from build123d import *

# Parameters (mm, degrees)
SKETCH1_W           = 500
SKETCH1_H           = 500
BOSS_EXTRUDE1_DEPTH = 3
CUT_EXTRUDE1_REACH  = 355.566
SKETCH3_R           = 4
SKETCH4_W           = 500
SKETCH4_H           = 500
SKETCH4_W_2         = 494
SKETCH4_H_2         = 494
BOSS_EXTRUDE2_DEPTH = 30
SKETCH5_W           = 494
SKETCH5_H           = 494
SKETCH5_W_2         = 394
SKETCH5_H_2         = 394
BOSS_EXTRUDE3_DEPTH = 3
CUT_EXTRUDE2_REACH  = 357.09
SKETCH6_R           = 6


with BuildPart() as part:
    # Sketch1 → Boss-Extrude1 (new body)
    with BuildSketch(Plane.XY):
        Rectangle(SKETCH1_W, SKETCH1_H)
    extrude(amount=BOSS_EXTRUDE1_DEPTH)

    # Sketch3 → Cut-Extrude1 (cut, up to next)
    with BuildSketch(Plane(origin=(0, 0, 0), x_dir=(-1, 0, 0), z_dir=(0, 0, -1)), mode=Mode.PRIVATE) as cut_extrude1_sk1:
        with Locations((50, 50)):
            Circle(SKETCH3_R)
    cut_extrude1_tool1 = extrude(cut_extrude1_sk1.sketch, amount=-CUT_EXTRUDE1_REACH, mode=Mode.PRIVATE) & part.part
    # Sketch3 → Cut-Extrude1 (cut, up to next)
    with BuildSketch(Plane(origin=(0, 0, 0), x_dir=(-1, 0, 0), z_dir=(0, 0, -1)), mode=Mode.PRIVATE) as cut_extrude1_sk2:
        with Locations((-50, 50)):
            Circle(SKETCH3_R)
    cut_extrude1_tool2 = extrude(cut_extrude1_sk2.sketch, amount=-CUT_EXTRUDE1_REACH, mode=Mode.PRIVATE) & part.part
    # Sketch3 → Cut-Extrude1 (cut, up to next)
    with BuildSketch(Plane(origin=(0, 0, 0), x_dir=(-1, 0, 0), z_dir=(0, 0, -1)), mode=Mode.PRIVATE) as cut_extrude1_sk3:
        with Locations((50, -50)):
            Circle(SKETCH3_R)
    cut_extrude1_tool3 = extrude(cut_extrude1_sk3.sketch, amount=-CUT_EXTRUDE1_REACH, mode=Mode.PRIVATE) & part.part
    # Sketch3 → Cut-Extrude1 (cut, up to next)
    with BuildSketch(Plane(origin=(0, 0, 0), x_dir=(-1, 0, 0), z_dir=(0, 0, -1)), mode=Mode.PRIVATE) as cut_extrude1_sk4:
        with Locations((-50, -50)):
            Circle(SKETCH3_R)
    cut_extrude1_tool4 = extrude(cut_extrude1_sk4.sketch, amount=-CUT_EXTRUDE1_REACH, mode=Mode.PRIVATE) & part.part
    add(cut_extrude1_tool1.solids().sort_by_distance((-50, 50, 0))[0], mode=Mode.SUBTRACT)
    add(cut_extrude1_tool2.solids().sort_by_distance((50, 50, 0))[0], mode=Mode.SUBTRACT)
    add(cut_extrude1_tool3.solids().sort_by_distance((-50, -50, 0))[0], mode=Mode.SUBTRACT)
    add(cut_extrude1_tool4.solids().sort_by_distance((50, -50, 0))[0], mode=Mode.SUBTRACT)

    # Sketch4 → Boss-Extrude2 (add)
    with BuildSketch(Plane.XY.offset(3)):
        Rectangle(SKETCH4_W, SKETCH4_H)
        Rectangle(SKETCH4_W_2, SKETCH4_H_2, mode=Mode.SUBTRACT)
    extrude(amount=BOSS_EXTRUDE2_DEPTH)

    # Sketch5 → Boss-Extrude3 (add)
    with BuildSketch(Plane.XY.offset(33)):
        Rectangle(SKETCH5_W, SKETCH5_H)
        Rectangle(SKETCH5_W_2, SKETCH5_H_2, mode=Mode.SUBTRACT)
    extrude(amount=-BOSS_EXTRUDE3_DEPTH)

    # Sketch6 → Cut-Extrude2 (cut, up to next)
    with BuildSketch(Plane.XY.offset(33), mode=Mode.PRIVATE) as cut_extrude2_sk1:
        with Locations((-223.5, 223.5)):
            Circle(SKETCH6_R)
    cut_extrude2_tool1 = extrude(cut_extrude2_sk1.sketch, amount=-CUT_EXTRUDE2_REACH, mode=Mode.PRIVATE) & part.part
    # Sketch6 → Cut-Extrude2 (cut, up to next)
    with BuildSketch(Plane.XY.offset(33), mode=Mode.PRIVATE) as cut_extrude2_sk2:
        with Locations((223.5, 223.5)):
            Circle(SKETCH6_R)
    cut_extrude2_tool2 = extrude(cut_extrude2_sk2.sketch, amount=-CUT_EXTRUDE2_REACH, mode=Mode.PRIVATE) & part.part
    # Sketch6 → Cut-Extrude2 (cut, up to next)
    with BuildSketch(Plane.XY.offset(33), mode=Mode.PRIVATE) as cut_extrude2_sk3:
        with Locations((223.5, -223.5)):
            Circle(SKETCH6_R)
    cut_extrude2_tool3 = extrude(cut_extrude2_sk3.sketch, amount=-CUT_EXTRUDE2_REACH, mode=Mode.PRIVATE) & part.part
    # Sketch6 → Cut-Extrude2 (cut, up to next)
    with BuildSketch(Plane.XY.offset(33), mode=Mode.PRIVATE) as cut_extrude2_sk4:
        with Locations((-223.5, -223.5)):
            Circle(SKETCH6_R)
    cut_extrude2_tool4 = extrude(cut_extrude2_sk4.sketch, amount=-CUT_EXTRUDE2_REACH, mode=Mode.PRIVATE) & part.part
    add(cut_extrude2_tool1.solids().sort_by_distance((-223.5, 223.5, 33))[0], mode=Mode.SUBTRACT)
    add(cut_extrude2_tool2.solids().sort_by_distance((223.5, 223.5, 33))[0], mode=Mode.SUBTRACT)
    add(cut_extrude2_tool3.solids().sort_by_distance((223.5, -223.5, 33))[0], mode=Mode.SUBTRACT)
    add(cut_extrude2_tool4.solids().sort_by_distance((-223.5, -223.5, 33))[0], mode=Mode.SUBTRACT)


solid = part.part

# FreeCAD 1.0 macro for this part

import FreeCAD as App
import Part
import Sketcher

V = App.Vector
Q = App.Units.Quantity

doc = App.newDocument("Part")
body = doc.addObject("PartDesign::Body", "Body")

# Sketch on XY plane
sketch1 = doc.addObject("Sketcher::SketchObject", "Sketch")
body.addObject(sketch1)
sketch1.AttachmentSupport = (doc.XY_Plane, [""])
sketch1.MapMode = "FlatFace"
sketch1.addGeometry(Part.LineSegment(V(-250, 250, 0), V(-250, -250, 0)), False)
sketch1.addGeometry(Part.LineSegment(V(-250, -250, 0), V(250, -250, 0)), False)
sketch1.addGeometry(Part.LineSegment(V(250, -250, 0), V(250, 250, 0)), False)
sketch1.addGeometry(Part.LineSegment(V(250, 250, 0), V(-250, 250, 0)), False)
sketch1.addConstraint(Sketcher.Constraint("Coincident", 0, 2, 1, 1))
sketch1.addConstraint(Sketcher.Constraint("Coincident", 1, 2, 2, 1))
sketch1.addConstraint(Sketcher.Constraint("Coincident", 2, 2, 3, 1))
sketch1.addConstraint(Sketcher.Constraint("Coincident", 3, 2, 0, 1))
sketch1.addConstraint(Sketcher.Constraint("Vertical", 0))
sketch1.addConstraint(Sketcher.Constraint("Horizontal", 1))
sketch1.addConstraint(Sketcher.Constraint("Vertical", 2))
sketch1.addConstraint(Sketcher.Constraint("Horizontal", 3))
sketch1.addConstraint(Sketcher.Constraint("Symmetric", 0, 2, 2, 2, -1, 1))
sketch1.addConstraint(Sketcher.Constraint("Equal", 3, 0))
sketch1.addConstraint(Sketcher.Constraint("DistanceX", 1, 1, 1, 2, Q("500 mm")))
pad1 = doc.addObject("PartDesign::Pad", "Pad")
body.addObject(pad1)
pad1.Profile = sketch1
pad1.Length = 3

# Sketch on XY plane
sketch2 = doc.addObject("Sketcher::SketchObject", "Sketch001")
body.addObject(sketch2)
sketch2.AttachmentSupport = (doc.XY_Plane, [""])
sketch2.MapMode = "FlatFace"
sketch2.addGeometry(Part.Circle(V(-50, 50, 0), V(0, 0, 1), 4), False)
sketch2.addConstraint(Sketcher.Constraint("Diameter", 0, Q("8 mm")))
sketch2.addConstraint(Sketcher.Constraint("DistanceX", 0, 3, -1, 1, Q("50 mm")))
sketch2.addConstraint(Sketcher.Constraint("DistanceY", -1, 1, 0, 3, Q("50 mm")))
pocket1 = doc.addObject("PartDesign::Pocket", "Pocket")
body.addObject(pocket1)
pocket1.Profile = sketch2
pocket1.Type = "UpToFirst"
pocket1.Reversed = True

# Sketch on XY plane
sketch3 = doc.addObject("Sketcher::SketchObject", "Sketch002")
body.addObject(sketch3)
sketch3.AttachmentSupport = (doc.XY_Plane, [""])
sketch3.MapMode = "FlatFace"
sketch3.addGeometry(Part.Circle(V(50, 50, 0), V(0, 0, 1), 4), False)
sketch3.addConstraint(Sketcher.Constraint("Diameter", 0, Q("8 mm")))
sketch3.addConstraint(Sketcher.Constraint("DistanceX", -1, 1, 0, 3, Q("50 mm")))
sketch3.addConstraint(Sketcher.Constraint("DistanceY", -1, 1, 0, 3, Q("50 mm")))
pocket2 = doc.addObject("PartDesign::Pocket", "Pocket001")
body.addObject(pocket2)
pocket2.Profile = sketch3
pocket2.Type = "UpToFirst"
pocket2.Reversed = True

# Sketch on XY plane
sketch4 = doc.addObject("Sketcher::SketchObject", "Sketch003")
body.addObject(sketch4)
sketch4.AttachmentSupport = (doc.XY_Plane, [""])
sketch4.MapMode = "FlatFace"
sketch4.addGeometry(Part.Circle(V(-50, -50, 0), V(0, 0, 1), 4), False)
sketch4.addConstraint(Sketcher.Constraint("Diameter", 0, Q("8 mm")))
sketch4.addConstraint(Sketcher.Constraint("DistanceX", 0, 3, -1, 1, Q("50 mm")))
sketch4.addConstraint(Sketcher.Constraint("DistanceY", 0, 3, -1, 1, Q("50 mm")))
pocket3 = doc.addObject("PartDesign::Pocket", "Pocket002")
body.addObject(pocket3)
pocket3.Profile = sketch4
pocket3.Type = "UpToFirst"
pocket3.Reversed = True

# Sketch on XY plane
sketch5 = doc.addObject("Sketcher::SketchObject", "Sketch004")
body.addObject(sketch5)
sketch5.AttachmentSupport = (doc.XY_Plane, [""])
sketch5.MapMode = "FlatFace"
sketch5.addGeometry(Part.Circle(V(50, -50, 0), V(0, 0, 1), 4), False)
sketch5.addConstraint(Sketcher.Constraint("Diameter", 0, Q("8 mm")))
sketch5.addConstraint(Sketcher.Constraint("DistanceX", -1, 1, 0, 3, Q("50 mm")))
sketch5.addConstraint(Sketcher.Constraint("DistanceY", 0, 3, -1, 1, Q("50 mm")))
pocket4 = doc.addObject("PartDesign::Pocket", "Pocket003")
body.addObject(pocket4)
pocket4.Profile = sketch5
pocket4.Type = "UpToFirst"
pocket4.Reversed = True

# Sketch on XY plane
sketch6 = doc.addObject("Sketcher::SketchObject", "Sketch005")
body.addObject(sketch6)
sketch6.AttachmentSupport = (doc.XY_Plane, [""])
sketch6.MapMode = "FlatFace"
sketch6.AttachmentOffset = App.Placement(V(0, 0, 3), App.Rotation())
sketch6.addGeometry(Part.LineSegment(V(-250, 250, 0), V(-250, -250, 0)), False)
sketch6.addGeometry(Part.LineSegment(V(-250, -250, 0), V(250, -250, 0)), False)
sketch6.addGeometry(Part.LineSegment(V(250, -250, 0), V(250, 250, 0)), False)
sketch6.addGeometry(Part.LineSegment(V(250, 250, 0), V(-250, 250, 0)), False)
sketch6.addGeometry(Part.LineSegment(V(247, -247, 0), V(-247, -247, 0)), False)
sketch6.addGeometry(Part.LineSegment(V(-247, -247, 0), V(-247, 247, 0)), False)
sketch6.addGeometry(Part.LineSegment(V(-247, 247, 0), V(247, 247, 0)), False)
sketch6.addGeometry(Part.LineSegment(V(247, 247, 0), V(247, -247, 0)), False)
sketch6.addConstraint(Sketcher.Constraint("Coincident", 0, 2, 1, 1))
sketch6.addConstraint(Sketcher.Constraint("Coincident", 1, 2, 2, 1))
sketch6.addConstraint(Sketcher.Constraint("Coincident", 2, 2, 3, 1))
sketch6.addConstraint(Sketcher.Constraint("Coincident", 3, 2, 0, 1))
sketch6.addConstraint(Sketcher.Constraint("Coincident", 4, 2, 5, 1))
sketch6.addConstraint(Sketcher.Constraint("Coincident", 5, 2, 6, 1))
sketch6.addConstraint(Sketcher.Constraint("Coincident", 6, 2, 7, 1))
sketch6.addConstraint(Sketcher.Constraint("Coincident", 7, 2, 4, 1))
sketch6.addConstraint(Sketcher.Constraint("Vertical", 0))
sketch6.addConstraint(Sketcher.Constraint("Horizontal", 1))
sketch6.addConstraint(Sketcher.Constraint("Vertical", 2))
sketch6.addConstraint(Sketcher.Constraint("Horizontal", 3))
sketch6.addConstraint(Sketcher.Constraint("Horizontal", 4))
sketch6.addConstraint(Sketcher.Constraint("Vertical", 5))
sketch6.addConstraint(Sketcher.Constraint("Horizontal", 6))
sketch6.addConstraint(Sketcher.Constraint("Vertical", 7))
sketch6.addConstraint(Sketcher.Constraint("Symmetric", 0, 2, 2, 2, -1, 1))
sketch6.addConstraint(Sketcher.Constraint("Symmetric", 4, 2, 6, 2, -1, 1))
sketch6.addConstraint(Sketcher.Constraint("Equal", 3, 0))
sketch6.addConstraint(Sketcher.Constraint("Equal", 6, 5))
sketch6.addConstraint(Sketcher.Constraint("DistanceX", 1, 1, 1, 2, Q("500 mm")))
sketch6.addConstraint(Sketcher.Constraint("DistanceX", 4, 2, 4, 1, Q("494 mm")))
pad2 = doc.addObject("PartDesign::Pad", "Pad001")
body.addObject(pad2)
pad2.Profile = sketch6
pad2.Length = 30

# Sketch on XY plane
sketch7 = doc.addObject("Sketcher::SketchObject", "Sketch006")
body.addObject(sketch7)
sketch7.AttachmentSupport = (doc.XY_Plane, [""])
sketch7.MapMode = "FlatFace"
sketch7.AttachmentOffset = App.Placement(V(0, 0, 33), App.Rotation())
sketch7.addGeometry(Part.LineSegment(V(-247, 247, 0), V(-247, -247, 0)), False)
sketch7.addGeometry(Part.LineSegment(V(-247, -247, 0), V(247, -247, 0)), False)
sketch7.addGeometry(Part.LineSegment(V(247, -247, 0), V(247, 247, 0)), False)
sketch7.addGeometry(Part.LineSegment(V(247, 247, 0), V(-247, 247, 0)), False)
sketch7.addGeometry(Part.LineSegment(V(197, -197, 0), V(-197, -197, 0)), False)
sketch7.addGeometry(Part.LineSegment(V(-197, -197, 0), V(-197, 197, 0)), False)
sketch7.addGeometry(Part.LineSegment(V(-197, 197, 0), V(197, 197, 0)), False)
sketch7.addGeometry(Part.LineSegment(V(197, 197, 0), V(197, -197, 0)), False)
sketch7.addConstraint(Sketcher.Constraint("Coincident", 0, 2, 1, 1))
sketch7.addConstraint(Sketcher.Constraint("Coincident", 1, 2, 2, 1))
sketch7.addConstraint(Sketcher.Constraint("Coincident", 2, 2, 3, 1))
sketch7.addConstraint(Sketcher.Constraint("Coincident", 3, 2, 0, 1))
sketch7.addConstraint(Sketcher.Constraint("Coincident", 4, 2, 5, 1))
sketch7.addConstraint(Sketcher.Constraint("Coincident", 5, 2, 6, 1))
sketch7.addConstraint(Sketcher.Constraint("Coincident", 6, 2, 7, 1))
sketch7.addConstraint(Sketcher.Constraint("Coincident", 7, 2, 4, 1))
sketch7.addConstraint(Sketcher.Constraint("Vertical", 0))
sketch7.addConstraint(Sketcher.Constraint("Horizontal", 1))
sketch7.addConstraint(Sketcher.Constraint("Vertical", 2))
sketch7.addConstraint(Sketcher.Constraint("Horizontal", 3))
sketch7.addConstraint(Sketcher.Constraint("Horizontal", 4))
sketch7.addConstraint(Sketcher.Constraint("Vertical", 5))
sketch7.addConstraint(Sketcher.Constraint("Horizontal", 6))
sketch7.addConstraint(Sketcher.Constraint("Vertical", 7))
sketch7.addConstraint(Sketcher.Constraint("Symmetric", 0, 2, 2, 2, -1, 1))
sketch7.addConstraint(Sketcher.Constraint("Symmetric", 4, 2, 6, 2, -1, 1))
sketch7.addConstraint(Sketcher.Constraint("Equal", 3, 0))
sketch7.addConstraint(Sketcher.Constraint("Equal", 6, 5))
sketch7.addConstraint(Sketcher.Constraint("DistanceX", 1, 1, 1, 2, Q("494 mm")))
sketch7.addConstraint(Sketcher.Constraint("DistanceX", 4, 2, 4, 1, Q("394 mm")))
pad3 = doc.addObject("PartDesign::Pad", "Pad002")
body.addObject(pad3)
pad3.Profile = sketch7
pad3.Length = 3
pad3.Reversed = True

# Sketch on XY plane
sketch8 = doc.addObject("Sketcher::SketchObject", "Sketch007")
body.addObject(sketch8)
sketch8.AttachmentSupport = (doc.XY_Plane, [""])
sketch8.MapMode = "FlatFace"
sketch8.AttachmentOffset = App.Placement(V(0, 0, 33), App.Rotation())
sketch8.addGeometry(Part.Circle(V(-224, 224, 0), V(0, 0, 1), 6), False)
sketch8.addConstraint(Sketcher.Constraint("Diameter", 0, Q("12 mm")))
sketch8.addConstraint(Sketcher.Constraint("DistanceX", 0, 3, -1, 1, Q("223.5 mm")))
sketch8.addConstraint(Sketcher.Constraint("DistanceY", -1, 1, 0, 3, Q("223.5 mm")))
pocket5 = doc.addObject("PartDesign::Pocket", "Pocket004")
body.addObject(pocket5)
pocket5.Profile = sketch8
pocket5.Type = "UpToFirst"

# Sketch on XY plane
sketch9 = doc.addObject("Sketcher::SketchObject", "Sketch008")
body.addObject(sketch9)
sketch9.AttachmentSupport = (doc.XY_Plane, [""])
sketch9.MapMode = "FlatFace"
sketch9.AttachmentOffset = App.Placement(V(0, 0, 33), App.Rotation())
sketch9.addGeometry(Part.Circle(V(224, 224, 0), V(0, 0, 1), 6), False)
sketch9.addConstraint(Sketcher.Constraint("Diameter", 0, Q("12 mm")))
sketch9.addConstraint(Sketcher.Constraint("DistanceX", -1, 1, 0, 3, Q("223.5 mm")))
sketch9.addConstraint(Sketcher.Constraint("DistanceY", -1, 1, 0, 3, Q("223.5 mm")))
pocket6 = doc.addObject("PartDesign::Pocket", "Pocket005")
body.addObject(pocket6)
pocket6.Profile = sketch9
pocket6.Type = "UpToFirst"

# Sketch on XY plane
sketch10 = doc.addObject("Sketcher::SketchObject", "Sketch009")
body.addObject(sketch10)
sketch10.AttachmentSupport = (doc.XY_Plane, [""])
sketch10.MapMode = "FlatFace"
sketch10.AttachmentOffset = App.Placement(V(0, 0, 33), App.Rotation())
sketch10.addGeometry(Part.Circle(V(224, -224, 0), V(0, 0, 1), 6), False)
sketch10.addConstraint(Sketcher.Constraint("Diameter", 0, Q("12 mm")))
sketch10.addConstraint(Sketcher.Constraint("DistanceX", -1, 1, 0, 3, Q("223.5 mm")))
sketch10.addConstraint(Sketcher.Constraint("DistanceY", 0, 3, -1, 1, Q("223.5 mm")))
pocket7 = doc.addObject("PartDesign::Pocket", "Pocket006")
body.addObject(pocket7)
pocket7.Profile = sketch10
pocket7.Type = "UpToFirst"

# Sketch on XY plane
sketch11 = doc.addObject("Sketcher::SketchObject", "Sketch010")
body.addObject(sketch11)
sketch11.AttachmentSupport = (doc.XY_Plane, [""])
sketch11.MapMode = "FlatFace"
sketch11.AttachmentOffset = App.Placement(V(0, 0, 33), App.Rotation())
sketch11.addGeometry(Part.Circle(V(-224, -224, 0), V(0, 0, 1), 6), False)
sketch11.addConstraint(Sketcher.Constraint("Diameter", 0, Q("12 mm")))
sketch11.addConstraint(Sketcher.Constraint("DistanceX", 0, 3, -1, 1, Q("223.5 mm")))
sketch11.addConstraint(Sketcher.Constraint("DistanceY", 0, 3, -1, 1, Q("223.5 mm")))
pocket8 = doc.addObject("PartDesign::Pocket", "Pocket007")
body.addObject(pocket8)
pocket8.Profile = sketch11
pocket8.Type = "UpToFirst"

doc.recompute()
